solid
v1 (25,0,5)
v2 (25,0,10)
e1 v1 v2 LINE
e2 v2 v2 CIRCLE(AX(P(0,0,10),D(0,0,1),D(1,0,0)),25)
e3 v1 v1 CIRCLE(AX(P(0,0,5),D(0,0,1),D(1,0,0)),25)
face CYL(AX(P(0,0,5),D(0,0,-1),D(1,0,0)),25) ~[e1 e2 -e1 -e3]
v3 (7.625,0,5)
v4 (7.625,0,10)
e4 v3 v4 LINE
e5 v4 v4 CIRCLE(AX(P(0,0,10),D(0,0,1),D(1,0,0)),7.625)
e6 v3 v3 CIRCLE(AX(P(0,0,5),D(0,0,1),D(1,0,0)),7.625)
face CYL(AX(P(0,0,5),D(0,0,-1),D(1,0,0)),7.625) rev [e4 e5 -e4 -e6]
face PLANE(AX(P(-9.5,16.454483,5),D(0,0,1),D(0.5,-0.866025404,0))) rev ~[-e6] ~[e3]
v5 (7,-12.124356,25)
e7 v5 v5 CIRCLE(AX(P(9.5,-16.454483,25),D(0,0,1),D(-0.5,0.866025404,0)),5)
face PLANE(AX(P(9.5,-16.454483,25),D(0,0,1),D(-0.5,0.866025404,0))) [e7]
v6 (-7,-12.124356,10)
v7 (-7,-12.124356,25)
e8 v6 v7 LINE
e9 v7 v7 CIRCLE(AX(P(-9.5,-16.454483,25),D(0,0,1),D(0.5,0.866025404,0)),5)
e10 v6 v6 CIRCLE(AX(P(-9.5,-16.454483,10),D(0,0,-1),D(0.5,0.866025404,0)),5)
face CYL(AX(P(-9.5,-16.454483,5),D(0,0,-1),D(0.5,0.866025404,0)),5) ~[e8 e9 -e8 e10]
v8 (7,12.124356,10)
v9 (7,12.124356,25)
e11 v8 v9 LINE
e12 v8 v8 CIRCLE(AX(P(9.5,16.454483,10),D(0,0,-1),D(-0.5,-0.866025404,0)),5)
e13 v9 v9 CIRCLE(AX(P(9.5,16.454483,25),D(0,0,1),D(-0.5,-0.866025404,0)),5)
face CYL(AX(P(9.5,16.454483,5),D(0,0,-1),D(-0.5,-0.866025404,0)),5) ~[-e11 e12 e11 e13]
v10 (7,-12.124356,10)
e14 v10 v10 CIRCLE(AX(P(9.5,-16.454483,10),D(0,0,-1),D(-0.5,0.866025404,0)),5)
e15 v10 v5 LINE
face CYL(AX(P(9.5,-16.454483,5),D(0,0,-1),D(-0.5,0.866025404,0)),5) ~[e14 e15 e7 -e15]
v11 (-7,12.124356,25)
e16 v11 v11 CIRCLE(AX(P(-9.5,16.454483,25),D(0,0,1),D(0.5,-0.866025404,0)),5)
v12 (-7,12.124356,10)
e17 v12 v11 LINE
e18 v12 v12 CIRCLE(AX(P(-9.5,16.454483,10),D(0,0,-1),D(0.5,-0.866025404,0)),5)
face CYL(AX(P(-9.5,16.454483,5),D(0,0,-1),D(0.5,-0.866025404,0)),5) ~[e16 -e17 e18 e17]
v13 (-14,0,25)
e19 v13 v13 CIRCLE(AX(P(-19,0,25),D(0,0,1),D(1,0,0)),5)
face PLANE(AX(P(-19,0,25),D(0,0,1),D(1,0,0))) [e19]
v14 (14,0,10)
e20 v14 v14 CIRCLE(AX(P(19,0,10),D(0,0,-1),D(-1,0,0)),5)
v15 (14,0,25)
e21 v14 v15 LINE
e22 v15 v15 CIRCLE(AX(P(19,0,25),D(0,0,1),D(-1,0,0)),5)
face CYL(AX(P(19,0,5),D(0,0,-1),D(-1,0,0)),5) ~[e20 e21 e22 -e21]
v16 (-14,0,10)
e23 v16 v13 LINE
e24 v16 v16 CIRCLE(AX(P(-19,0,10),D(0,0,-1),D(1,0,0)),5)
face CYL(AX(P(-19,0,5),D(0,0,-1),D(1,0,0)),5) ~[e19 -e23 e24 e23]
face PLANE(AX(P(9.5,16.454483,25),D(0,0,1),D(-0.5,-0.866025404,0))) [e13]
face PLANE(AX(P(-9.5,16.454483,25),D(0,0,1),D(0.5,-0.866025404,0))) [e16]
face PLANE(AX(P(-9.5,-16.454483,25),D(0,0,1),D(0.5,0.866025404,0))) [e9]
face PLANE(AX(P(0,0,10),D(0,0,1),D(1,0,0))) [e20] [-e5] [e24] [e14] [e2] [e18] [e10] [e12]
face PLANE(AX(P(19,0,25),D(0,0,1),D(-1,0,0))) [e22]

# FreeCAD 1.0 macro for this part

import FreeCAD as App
import Part
import Sketcher
Q = App.Units.Quantity

doc = App.newDocument("Part")
body = doc.addObject("PartDesign::Body", "Body")

# Sketch on XY plane
sketch1 = body.newObject("Sketcher::SketchObject", "Sketch")
sketch1.AttachmentSupport = (doc.getObject("XY_Plane"), [""])
sketch1.MapMode = "FlatFace"
sketch1.addGeometry([
    Part.Circle(App.Vector(0, 0, 0), App.Vector(0, 0, 1), 25),
    Part.Circle(App.Vector(0, 0, 0), App.Vector(0, 0, 1), 7.625),
], False)
sketch1.addConstraint([
    Sketcher.Constraint("Coincident", 0, 3, -1, 1),
    Sketcher.Constraint("Coincident", 1, 3, -1, 1),
    Sketcher.Constraint("Diameter", 0, Q("50 mm")),
    Sketcher.Constraint("Diameter", 1, Q("15.25 mm")),
])
pad1 = body.newObject("PartDesign::Pad", "Pad")
pad1.Profile = sketch1
pad1.Length = 5

# Sketch on XY plane
sketch2 = body.newObject("Sketcher::SketchObject", "Sketch001")
sketch2.AttachmentSupport = (doc.getObject("XY_Plane"), [""])
sketch2.MapMode = "FlatFace"
sketch2.addGeometry(Part.Circle(App.Vector(-19, 0, 0), App.Vector(0, 0, 1), 5), False)
sketch2.addConstraint([
    Sketcher.Constraint("PointOnObject", 0, 3, -1),
    Sketcher.Constraint("Diameter", 0, Q("10 mm")),
    Sketcher.Constraint("DistanceX", 0, 3, -1, 1, Q("19 mm")),
])
pad2 = body.newObject("PartDesign::Pad", "Pad001")
pad2.Profile = sketch2
pad2.Length = 20
doc.recompute()

polarpattern = body.newObject("PartDesign::PolarPattern", "PolarPattern")
polarpattern.Originals = [pad2]
polarpattern.Axis = (doc.getObject("Z_Axis"), [""])
polarpattern.Angle = 360
polarpattern.Occurrences = 6
body.Tip = polarpattern
body2 = doc.addObject("PartDesign::Body", "Body001")
doc.recompute()

body.Placement = App.Placement(App.Vector(0, 0, 5), App.Rotation(App.Vector(0, 0, 1), 0))
boolean = body2.newObject("PartDesign::Boolean", "Boolean")
boolean.Type = "Fuse"
boolean.addObjects([body])

doc.recompute()
